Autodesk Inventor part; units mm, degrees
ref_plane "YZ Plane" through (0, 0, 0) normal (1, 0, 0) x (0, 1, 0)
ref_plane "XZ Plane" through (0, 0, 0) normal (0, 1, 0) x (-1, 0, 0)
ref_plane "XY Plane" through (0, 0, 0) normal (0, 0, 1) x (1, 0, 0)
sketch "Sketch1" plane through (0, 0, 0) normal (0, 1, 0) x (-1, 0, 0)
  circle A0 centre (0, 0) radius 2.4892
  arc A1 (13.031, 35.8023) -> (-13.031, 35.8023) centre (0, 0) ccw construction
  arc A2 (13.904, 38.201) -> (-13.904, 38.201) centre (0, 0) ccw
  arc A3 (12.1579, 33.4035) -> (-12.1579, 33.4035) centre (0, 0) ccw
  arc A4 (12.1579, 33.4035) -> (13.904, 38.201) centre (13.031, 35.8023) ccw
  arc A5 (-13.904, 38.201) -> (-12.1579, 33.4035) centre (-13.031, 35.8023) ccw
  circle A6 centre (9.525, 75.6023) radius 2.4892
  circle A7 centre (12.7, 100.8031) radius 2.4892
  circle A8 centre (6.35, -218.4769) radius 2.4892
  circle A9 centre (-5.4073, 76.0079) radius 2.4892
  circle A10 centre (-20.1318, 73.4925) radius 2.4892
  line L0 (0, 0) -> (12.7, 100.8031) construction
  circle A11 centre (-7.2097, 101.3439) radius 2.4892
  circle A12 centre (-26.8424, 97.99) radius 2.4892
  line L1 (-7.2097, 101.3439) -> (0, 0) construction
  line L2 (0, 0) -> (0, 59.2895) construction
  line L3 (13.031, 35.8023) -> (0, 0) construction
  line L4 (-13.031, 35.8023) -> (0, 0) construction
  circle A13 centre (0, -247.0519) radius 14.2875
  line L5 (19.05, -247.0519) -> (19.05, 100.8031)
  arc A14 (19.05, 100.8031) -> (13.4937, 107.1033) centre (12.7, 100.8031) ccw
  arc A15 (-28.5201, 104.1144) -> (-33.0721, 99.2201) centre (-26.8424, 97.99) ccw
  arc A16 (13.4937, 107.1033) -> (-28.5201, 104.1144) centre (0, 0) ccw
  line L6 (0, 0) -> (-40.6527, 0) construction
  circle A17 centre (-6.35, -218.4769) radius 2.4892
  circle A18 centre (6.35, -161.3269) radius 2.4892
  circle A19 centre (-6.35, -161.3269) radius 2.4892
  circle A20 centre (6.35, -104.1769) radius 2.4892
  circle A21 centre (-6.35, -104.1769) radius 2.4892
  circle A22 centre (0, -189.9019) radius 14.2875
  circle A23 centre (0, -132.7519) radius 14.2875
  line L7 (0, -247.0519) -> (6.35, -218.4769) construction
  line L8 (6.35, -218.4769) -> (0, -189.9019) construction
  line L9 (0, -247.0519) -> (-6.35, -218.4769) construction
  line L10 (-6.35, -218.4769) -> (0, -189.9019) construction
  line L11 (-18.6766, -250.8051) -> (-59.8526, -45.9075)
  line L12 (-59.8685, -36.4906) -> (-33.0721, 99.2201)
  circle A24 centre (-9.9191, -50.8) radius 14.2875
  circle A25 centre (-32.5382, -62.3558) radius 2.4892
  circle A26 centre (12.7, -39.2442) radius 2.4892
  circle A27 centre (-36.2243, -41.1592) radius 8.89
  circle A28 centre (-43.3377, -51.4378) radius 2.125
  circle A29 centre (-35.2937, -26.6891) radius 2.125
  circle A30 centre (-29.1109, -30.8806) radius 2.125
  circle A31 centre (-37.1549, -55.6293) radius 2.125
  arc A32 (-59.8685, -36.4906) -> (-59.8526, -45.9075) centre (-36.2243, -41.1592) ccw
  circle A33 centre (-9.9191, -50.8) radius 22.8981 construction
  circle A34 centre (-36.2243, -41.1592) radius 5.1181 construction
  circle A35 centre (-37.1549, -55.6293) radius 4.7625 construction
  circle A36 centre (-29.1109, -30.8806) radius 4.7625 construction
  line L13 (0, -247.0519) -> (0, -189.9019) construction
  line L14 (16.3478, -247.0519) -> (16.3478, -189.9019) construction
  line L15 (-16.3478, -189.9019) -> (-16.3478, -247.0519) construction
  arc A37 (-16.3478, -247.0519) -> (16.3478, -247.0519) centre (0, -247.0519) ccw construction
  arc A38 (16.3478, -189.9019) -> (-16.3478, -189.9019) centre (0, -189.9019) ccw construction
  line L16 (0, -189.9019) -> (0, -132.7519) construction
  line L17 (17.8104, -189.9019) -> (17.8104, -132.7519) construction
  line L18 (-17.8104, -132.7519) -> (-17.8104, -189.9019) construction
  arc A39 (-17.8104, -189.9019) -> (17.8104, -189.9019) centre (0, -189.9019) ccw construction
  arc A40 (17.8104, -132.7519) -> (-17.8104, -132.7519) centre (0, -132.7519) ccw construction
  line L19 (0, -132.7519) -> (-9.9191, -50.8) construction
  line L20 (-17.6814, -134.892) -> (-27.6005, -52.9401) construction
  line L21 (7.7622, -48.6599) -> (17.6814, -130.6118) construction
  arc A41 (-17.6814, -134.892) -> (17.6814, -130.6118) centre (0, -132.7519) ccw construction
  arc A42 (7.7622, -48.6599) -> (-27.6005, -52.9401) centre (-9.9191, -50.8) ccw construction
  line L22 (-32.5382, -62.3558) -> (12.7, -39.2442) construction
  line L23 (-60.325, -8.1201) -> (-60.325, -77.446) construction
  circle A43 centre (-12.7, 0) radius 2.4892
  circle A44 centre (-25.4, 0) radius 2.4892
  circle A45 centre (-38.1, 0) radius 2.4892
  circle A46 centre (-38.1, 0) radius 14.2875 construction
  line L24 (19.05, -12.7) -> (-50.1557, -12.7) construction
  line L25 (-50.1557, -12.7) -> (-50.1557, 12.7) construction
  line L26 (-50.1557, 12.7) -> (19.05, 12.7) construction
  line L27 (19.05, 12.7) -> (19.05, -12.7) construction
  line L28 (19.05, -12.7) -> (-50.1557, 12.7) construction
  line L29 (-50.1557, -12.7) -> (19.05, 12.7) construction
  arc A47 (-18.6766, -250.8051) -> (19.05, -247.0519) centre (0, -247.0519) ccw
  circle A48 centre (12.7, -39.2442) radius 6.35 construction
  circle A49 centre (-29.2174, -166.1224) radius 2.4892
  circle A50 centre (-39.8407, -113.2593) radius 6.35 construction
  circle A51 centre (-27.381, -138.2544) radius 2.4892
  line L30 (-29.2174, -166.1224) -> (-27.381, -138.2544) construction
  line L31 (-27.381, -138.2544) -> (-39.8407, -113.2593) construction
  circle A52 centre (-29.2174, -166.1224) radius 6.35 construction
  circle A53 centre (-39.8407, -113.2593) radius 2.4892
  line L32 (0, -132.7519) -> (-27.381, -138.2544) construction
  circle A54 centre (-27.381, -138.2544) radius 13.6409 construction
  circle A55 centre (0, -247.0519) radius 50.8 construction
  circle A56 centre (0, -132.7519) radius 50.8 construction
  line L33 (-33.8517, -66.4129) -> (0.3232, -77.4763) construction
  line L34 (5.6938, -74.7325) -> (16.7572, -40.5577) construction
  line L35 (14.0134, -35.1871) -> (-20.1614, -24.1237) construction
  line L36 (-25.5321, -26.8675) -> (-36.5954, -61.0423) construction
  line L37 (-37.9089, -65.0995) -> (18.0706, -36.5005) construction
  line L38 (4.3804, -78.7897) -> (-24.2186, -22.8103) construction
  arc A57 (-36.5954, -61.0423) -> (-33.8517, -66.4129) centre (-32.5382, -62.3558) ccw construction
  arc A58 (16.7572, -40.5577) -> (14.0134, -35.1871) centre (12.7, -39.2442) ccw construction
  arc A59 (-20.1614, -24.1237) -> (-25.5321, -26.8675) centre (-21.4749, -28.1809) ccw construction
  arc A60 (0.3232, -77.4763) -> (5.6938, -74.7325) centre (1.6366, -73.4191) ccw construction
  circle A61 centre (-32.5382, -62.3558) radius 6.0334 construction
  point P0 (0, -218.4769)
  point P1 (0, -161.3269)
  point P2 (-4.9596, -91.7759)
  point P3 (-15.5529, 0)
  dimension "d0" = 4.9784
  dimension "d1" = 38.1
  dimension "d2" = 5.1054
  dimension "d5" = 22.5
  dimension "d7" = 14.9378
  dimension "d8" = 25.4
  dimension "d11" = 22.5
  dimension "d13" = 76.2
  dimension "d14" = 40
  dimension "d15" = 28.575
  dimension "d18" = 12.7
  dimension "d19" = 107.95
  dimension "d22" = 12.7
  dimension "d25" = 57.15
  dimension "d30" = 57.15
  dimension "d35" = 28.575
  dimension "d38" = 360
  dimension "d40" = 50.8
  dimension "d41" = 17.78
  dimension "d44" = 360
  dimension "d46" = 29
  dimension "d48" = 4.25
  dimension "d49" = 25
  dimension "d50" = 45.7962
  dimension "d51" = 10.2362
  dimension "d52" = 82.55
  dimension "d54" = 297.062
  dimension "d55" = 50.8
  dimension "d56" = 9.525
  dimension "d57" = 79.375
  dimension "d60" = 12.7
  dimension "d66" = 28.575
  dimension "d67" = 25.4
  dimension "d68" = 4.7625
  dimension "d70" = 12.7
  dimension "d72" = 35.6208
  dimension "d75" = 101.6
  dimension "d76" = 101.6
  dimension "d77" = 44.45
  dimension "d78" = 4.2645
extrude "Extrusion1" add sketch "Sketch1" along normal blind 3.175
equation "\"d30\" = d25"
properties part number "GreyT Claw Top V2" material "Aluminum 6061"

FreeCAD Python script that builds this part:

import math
import FreeCAD as App
import Part
import Sketcher
Q = App.Units.Quantity

doc = App.newDocument("Part")
body = doc.addObject("PartDesign::Body", "Body")

sketch1 = body.newObject("Sketcher::SketchObject", "Sketch")
sketch1.AttachmentSupport = (doc.getObject("XZ_Plane"), [""])
sketch1.MapMode = "FlatFace"
sketch1.addGeometry(Part.ArcOfCircle(Part.Circle(App.Vector(0, -247.0519, 0), App.Vector(0, 0, 1), 19.049984), math.radians(180), math.radians(348.637335)), False)
sketch1.addGeometry(Part.LineSegment(App.Vector(-19.05, -247.0519, 0), App.Vector(-19.05, 100.8031, 0)), False)
sketch1.addGeometry(Part.ArcOfCircle(Part.Circle(App.Vector(-12.7, 100.8031, 0), App.Vector(0, 0, 1), 6.35), math.radians(97.180303), math.radians(180)), False)
sketch1.addGeometry(Part.ArcOfCircle(Part.Circle(App.Vector(0, 0, 0), App.Vector(0, 0, 1), 107.949974), math.radians(74.680739), math.radians(97.180731)), False)
sketch1.addGeometry(Part.ArcOfCircle(Part.Circle(App.Vector(26.8424, 97.99, 0), App.Vector(0, 0, 1), 6.350036), math.radians(11.169784), math.radians(74.680385)), False)
sketch1.addGeometry(Part.LineSegment(App.Vector(33.0721, 99.2201, 0), App.Vector(59.8685, -36.4906, 0)), False)
sketch1.addGeometry(Part.ArcOfCircle(Part.Circle(App.Vector(36.2243, -41.1592, 0), App.Vector(0, 0, 1), 24.100706), math.radians(-11.36271), math.radians(11.169502)), False)
sketch1.addGeometry(Part.LineSegment(App.Vector(59.8526, -45.9075, 0), App.Vector(18.6766, -250.8051, 0)), False)
sketch1.addGeometry(Part.Circle(App.Vector(29.2174, -166.1224, 0), App.Vector(0, 0, 1), 2.4892), False)
sketch1.addGeometry(Part.Circle(App.Vector(27.381, -138.2544, 0), App.Vector(0, 0, 1), 2.4892), False)
sketch1.addGeometry(Part.Circle(App.Vector(39.8407, -113.2593, 0), App.Vector(0, 0, 1), 2.4892), False)
sketch1.addGeometry(Part.Circle(App.Vector(6.35, -218.4769, 0), App.Vector(0, 0, 1), 2.4892), False)
sketch1.addGeometry(Part.Circle(App.Vector(0, -247.0519, 0), App.Vector(0, 0, 1), 14.2875), False)
sketch1.addGeometry(Part.Circle(App.Vector(-6.35, -218.4769, 0), App.Vector(0, 0, 1), 2.4892), False)
sketch1.addGeometry(Part.Circle(App.Vector(0, -189.9019, 0), App.Vector(0, 0, 1), 14.2875), False)
sketch1.addGeometry(Part.Circle(App.Vector(6.35, -161.3269, 0), App.Vector(0, 0, 1), 2.4892), False)
sketch1.addGeometry(Part.Circle(App.Vector(6.35, -104.1769, 0), App.Vector(0, 0, 1), 2.4892), False)
sketch1.addGeometry(Part.Circle(App.Vector(-6.35, -161.3269, 0), App.Vector(0, 0, 1), 2.4892), False)
sketch1.addGeometry(Part.Circle(App.Vector(0, -132.7519, 0), App.Vector(0, 0, 1), 14.2875), False)
sketch1.addGeometry(Part.Circle(App.Vector(-6.35, -104.1769, 0), App.Vector(0, 0, 1), 2.4892), False)
sketch1.addGeometry(Part.Circle(App.Vector(43.3377, -51.4378, 0), App.Vector(0, 0, 1), 2.125), False)
sketch1.addGeometry(Part.Circle(App.Vector(32.5382, -62.3558, 0), App.Vector(0, 0, 1), 2.4892), False)
sketch1.addGeometry(Part.Circle(App.Vector(37.1549, -55.6293, 0), App.Vector(0, 0, 1), 2.125), False)
sketch1.addGeometry(Part.Circle(App.Vector(36.2243, -41.1592, 0), App.Vector(0, 0, 1), 8.89), False)
sketch1.addGeometry(Part.Circle(App.Vector(35.2937, -26.6891, 0), App.Vector(0, 0, 1), 2.125), False)
sketch1.addGeometry(Part.Circle(App.Vector(38.1, 0, 0), App.Vector(0, 0, 1), 2.4892), False)
sketch1.addGeometry(Part.Circle(App.Vector(29.1109, -30.8806, 0), App.Vector(0, 0, 1), 2.125), False)
sketch1.addGeometry(Part.Circle(App.Vector(25.4, 0, 0), App.Vector(0, 0, 1), 2.4892), False)
sketch1.addGeometry(Part.Circle(App.Vector(26.8424, 97.99, 0), App.Vector(0, 0, 1), 2.4892), False)
sketch1.addGeometry(Part.Circle(App.Vector(9.9191, -50.8, 0), App.Vector(0, 0, 1), 14.2875), False)
sketch1.addGeometry(Part.Circle(App.Vector(12.7, 0, 0), App.Vector(0, 0, 1), 2.4892), False)
sketch1.addGeometry(Part.Circle(App.Vector(-12.7, -39.2442, 0), App.Vector(0, 0, 1), 2.4892), False)
sketch1.addGeometry(Part.Circle(App.Vector(0, 0, 0), App.Vector(0, 0, 1), 2.4892), False)
sketch1.addGeometry(Part.Circle(App.Vector(20.1318, 73.4925, 0), App.Vector(0, 0, 1), 2.4892), False)
sketch1.addGeometry(Part.Circle(App.Vector(5.4073, 76.0079, 0), App.Vector(0, 0, 1), 2.4892), False)
sketch1.addGeometry(Part.Circle(App.Vector(7.2097, 101.3439, 0), App.Vector(0, 0, 1), 2.4892), False)
sketch1.addGeometry(Part.ArcOfCircle(Part.Circle(App.Vector(0, 0, 0), App.Vector(0, 0, 1), 40.652646), math.radians(70.000036), math.radians(109.999964)), False)
sketch1.addGeometry(Part.ArcOfCircle(Part.Circle(App.Vector(-13.031, 35.8023, 0), App.Vector(0, 0, 1), 2.552752), math.radians(109.998831), math.radians(290.000173)), False)
sketch1.addGeometry(Part.ArcOfCircle(Part.Circle(App.Vector(0, 0, 0), App.Vector(0, 0, 1), 35.547269), math.radians(69.999969), math.radians(110.000031)), False)
sketch1.addGeometry(Part.ArcOfCircle(Part.Circle(App.Vector(13.031, 35.8023, 0), App.Vector(0, 0, 1), 2.552624), math.radians(-110.000173), math.radians(70.001169)), False)
sketch1.addGeometry(Part.Circle(App.Vector(-9.525, 75.6023, 0), App.Vector(0, 0, 1), 2.4892), False)
sketch1.addGeometry(Part.Circle(App.Vector(-12.7, 100.8031, 0), App.Vector(0, 0, 1), 2.4892), False)
sketch1.addConstraint(Sketcher.Constraint("Tangent", 0, 1, 1, 1))
sketch1.addConstraint(Sketcher.Constraint("Tangent", 1, 2, 2, 2))
sketch1.addConstraint(Sketcher.Constraint("Tangent", 2, 1, 3, 2))
sketch1.addConstraint(Sketcher.Constraint("Tangent", 3, 1, 4, 2))
sketch1.addConstraint(Sketcher.Constraint("Tangent", 4, 1, 5, 1))
sketch1.addConstraint(Sketcher.Constraint("Tangent", 5, 2, 6, 2))
sketch1.addConstraint(Sketcher.Constraint("Tangent", 6, 1, 7, 1))
sketch1.addConstraint(Sketcher.Constraint("Tangent", 7, 2, 0, 2))
sketch1.addConstraint(Sketcher.Constraint("Tangent", 36, 2, 37, 1))
sketch1.addConstraint(Sketcher.Constraint("Tangent", 37, 2, 38, 2))
sketch1.addConstraint(Sketcher.Constraint("Tangent", 38, 1, 39, 1))
sketch1.addConstraint(Sketcher.Constraint("Tangent", 39, 2, 36, 1))
sketch1.addConstraint(Sketcher.Constraint("Vertical", 1))
sketch1.addConstraint(Sketcher.Constraint("Coincident", 3, 3, -1, 1))
sketch1.addConstraint(Sketcher.Constraint("Coincident", 32, 3, -1, 1))
sketch1.addConstraint(Sketcher.Constraint("Coincident", 36, 3, -1, 1))
sketch1.addConstraint(Sketcher.Constraint("Coincident", 38, 3, -1, 1))
sketch1.addConstraint(Sketcher.Constraint("Coincident", 12, 3, 0, 3))
sketch1.addConstraint(Sketcher.Constraint("Coincident", 23, 3, 6, 3))
sketch1.addConstraint(Sketcher.Constraint("Coincident", 28, 3, 4, 3))
sketch1.addConstraint(Sketcher.Constraint("Coincident", 41, 3, 2, 3))
sketch1.addConstraint(Sketcher.Constraint("Equal", 2, 4))
sketch1.addConstraint(Sketcher.Constraint("Equal", 8, 9))
sketch1.addConstraint(Sketcher.Constraint("Equal", 9, 10))
sketch1.addConstraint(Sketcher.Constraint("Equal", 10, 11))
sketch1.addConstraint(Sketcher.Constraint("Equal", 11, 13))
sketch1.addConstraint(Sketcher.Constraint("Equal", 12, 14))
sketch1.addConstraint(Sketcher.Constraint("Equal", 13, 15))
sketch1.addConstraint(Sketcher.Constraint("Equal", 15, 16))
sketch1.addConstraint(Sketcher.Constraint("Equal", 16, 17))
sketch1.addConstraint(Sketcher.Constraint("Equal", 14, 18))
sketch1.addConstraint(Sketcher.Constraint("Equal", 17, 19))
sketch1.addConstraint(Sketcher.Constraint("Equal", 19, 21))
sketch1.addConstraint(Sketcher.Constraint("Equal", 20, 22))
sketch1.addConstraint(Sketcher.Constraint("Equal", 22, 24))
sketch1.addConstraint(Sketcher.Constraint("Equal", 21, 25))
sketch1.addConstraint(Sketcher.Constraint("Equal", 24, 26))
sketch1.addConstraint(Sketcher.Constraint("Equal", 25, 27))
sketch1.addConstraint(Sketcher.Constraint("Equal", 27, 28))
sketch1.addConstraint(Sketcher.Constraint("Equal", 18, 29))
sketch1.addConstraint(Sketcher.Constraint("Equal", 28, 30))
sketch1.addConstraint(Sketcher.Constraint("Equal", 30, 31))
sketch1.addConstraint(Sketcher.Constraint("Equal", 31, 32))
sketch1.addConstraint(Sketcher.Constraint("Equal", 32, 33))
sketch1.addConstraint(Sketcher.Constraint("Equal", 33, 34))
sketch1.addConstraint(Sketcher.Constraint("Equal", 34, 35))
sketch1.addConstraint(Sketcher.Constraint("Equal", 35, 40))
sketch1.addConstraint(Sketcher.Constraint("Equal", 40, 41))
sketch1.addConstraint(Sketcher.Constraint("Symmetric", 11, 3, 13, 3, -2))
sketch1.addConstraint(Sketcher.Constraint("Symmetric", 15, 3, 17, 3, -2))
sketch1.addConstraint(Sketcher.Constraint("Symmetric", 16, 3, 19, 3, -2))
sketch1.addConstraint(Sketcher.Constraint("PointOnObject", 0, 3, -2))
sketch1.addConstraint(Sketcher.Constraint("PointOnObject", 14, 3, -2))
sketch1.addConstraint(Sketcher.Constraint("PointOnObject", 18, 3, -2))
sketch1.addConstraint(Sketcher.Constraint("PointOnObject", 25, 3, -1))
sketch1.addConstraint(Sketcher.Constraint("PointOnObject", 27, 3, -1))
sketch1.addConstraint(Sketcher.Constraint("PointOnObject", 30, 3, -1))
sketch1.addConstraint(Sketcher.Constraint("Horizontal", 37, 3, 39, 3))
sketch1.addConstraint(Sketcher.Constraint("Vertical", 11, 3, 15, 3))
sketch1.addConstraint(Sketcher.Constraint("Vertical", 15, 3, 16, 3))
sketch1.addConstraint(Sketcher.Constraint("Vertical", 2, 3, 31, 3))
sketch1.addConstraint(Sketcher.Constraint("Diameter", 23, Q("0.7 in")))
sketch1.addConstraint(Sketcher.Constraint("Radius", 0, Q("0.75 in")))
sketch1.addConstraint(Sketcher.Constraint("Radius", 2, Q("0.25 in")))
sketch1.addConstraint(Sketcher.Constraint("Radius", 3, Q("4.25 in")))
sketch1.addConstraint(Sketcher.Constraint("Diameter", 8, Q("0.196 in")))
sketch1.addConstraint(Sketcher.Constraint("Diameter", 12, Q("1.125 in")))
sketch1.addConstraint(Sketcher.Constraint("DistanceX", -1, 1, 27, 3, Q("1 in")))
sketch1.addConstraint(Sketcher.Constraint("DistanceY", 29, 3, -1, 1, Q("2 in")))
sketch1.addConstraint(Sketcher.Constraint("DistanceX", 30, 3, 25, 3, Q("1 in")))
sketch1.addConstraint(Sketcher.Constraint("DistanceX", 31, 3, 30, 3, Q("1 in")))
sketch1.addConstraint(Sketcher.Constraint("DistanceX", 0, 1, 11, 3, Q("1 in")))
sketch1.addConstraint(Sketcher.Constraint("Radius", 37, Q("0.1005 in")))
sketch1.addConstraint(Sketcher.Constraint("Diameter", 20, 4.25))
sketch1.addConstraint(Sketcher.Constraint("DistanceY", 0, 3, 14, 3, Q("2.25 in")))
sketch1.addConstraint(Sketcher.Constraint("DistanceY", 11, 3, 15, 3, Q("2.25 in")))
sketch1.addConstraint(Sketcher.Constraint("DistanceY", 15, 3, 16, 3, Q("2.25 in")))
sketch1.addConstraint(Sketcher.Constraint("DistanceX", 40, 3, -1, 1, Q("0.375 in")))
sketch1.addConstraint(Sketcher.Constraint("DistanceY", 0, 3, 11, 3, Q("1.125 in")))
sketch1.addConstraint(Sketcher.Constraint("DistanceY", 15, 3, 18, 3, Q("1.125 in")))
sketch1.addConstraint(Sketcher.Constraint("Radius", 36, Q("1.6005 in")))
sketch1.addConstraint(Sketcher.Constraint("Angle", 5, Q("-78.8305 deg")))
sketch1.addConstraint(Sketcher.Constraint("Radius", 6, 24.1007))
sketch1.addConstraint(Sketcher.Constraint("DistanceX", -1, 1, 9, 3, Q("1.078 in")))
sketch1.addConstraint(Sketcher.Constraint("DistanceY", -1, 1, 3, 1, Q("4.099 in")))
sketch1.addConstraint(Sketcher.Constraint("DistanceY", 0, 3, 6, 3, Q("8.106 in")))
sketch1.addConstraint(Sketcher.Constraint("DistanceX", 35, 3, 3, 1, Q("0.839 in")))
sketch1.addConstraint(Sketcher.Constraint("Distance", 5, Q("5.4461 in")))
sketch1.addConstraint(Sketcher.Constraint("DistanceX", -1, 1, 8, 3, Q("1.1503 in")))
sketch1.addConstraint(Sketcher.Constraint("DistanceX", -1, 1, 20, 3, Q("1.7062 in")))
sketch1.addConstraint(Sketcher.Constraint("DistanceY", 20, 3, -1, 1, Q("2.0251 in")))
sketch1.addConstraint(Sketcher.Constraint("DistanceX", -1, 1, 22, 3, Q("1.4628 in")))
sketch1.addConstraint(Sketcher.Constraint("DistanceX", -1, 1, 26, 3, Q("1.1461 in")))
sketch1.addConstraint(Sketcher.Constraint("DistanceX", -1, 1, 33, 3, Q("0.7926 in")))
sketch1.addConstraint(Sketcher.Constraint("DistanceY", -1, 1, 33, 3, Q("2.8934 in")))
sketch1.addConstraint(Sketcher.Constraint("DistanceX", 36, 2, -1, 1, Q("0.5474 in")))
sketch1.addConstraint(Sketcher.Constraint("DistanceY", 0, 3, 8, 3, Q("3.1862 in")))
sketch1.addConstraint(Sketcher.Constraint("DistanceY", 21, 3, 6, 3, Q("0.8345 in")))
sketch1.addConstraint(Sketcher.Constraint("DistanceX", 21, 3, 10, 3, Q("0.2875 in")))
sketch1.addConstraint(Sketcher.Constraint("DistanceY", 22, 3, 6, 3, Q("0.5697 in")))
sketch1.addConstraint(Sketcher.Constraint("DistanceY", 10, 3, 22, 3, Q("2.2689 in")))
sketch1.addConstraint(Sketcher.Constraint("DistanceY", 6, 3, 24, 3, Q("0.5697 in")))
sketch1.addConstraint(Sketcher.Constraint("DistanceX", 24, 3, 20, 3, Q("0.3167 in")))
sketch1.addConstraint(Sketcher.Constraint("DistanceY", 6, 3, 31, 3, Q("0.0754 in")))
sketch1.addConstraint(Sketcher.Constraint("DistanceX", 34, 3, 33, 3, Q("0.5797 in")))
sketch1.addConstraint(Sketcher.Constraint("DistanceY", 34, 3, 2, 3, Q("0.9762 in")))
sketch1.addConstraint(Sketcher.Constraint("DistanceY", 2, 3, 35, 3, Q("0.0213 in")))
sketch1.addConstraint(Sketcher.Constraint("DistanceY", 40, 3, 2, 1, Q("1.2402 in")))
sketch1.addConstraint(Sketcher.Constraint("DistanceY", 9, 3, -1, 1, 138.2544))
sketch1.addConstraint(Sketcher.Constraint("DistanceX", -1, 1, 10, 3, 39.8407))
sketch1.addConstraint(Sketcher.Constraint("DistanceY", 26, 3, -1, 1, 30.8806))
sketch1.addConstraint(Sketcher.Constraint("DistanceX", -1, 1, 29, 3, Q("0.3905118 in")))
pad1 = body.newObject("PartDesign::Pad", "Pad")
pad1.Profile = sketch1
pad1.Length = Q("0.125 in")
pad1.Reversed = True

doc.recompute()
